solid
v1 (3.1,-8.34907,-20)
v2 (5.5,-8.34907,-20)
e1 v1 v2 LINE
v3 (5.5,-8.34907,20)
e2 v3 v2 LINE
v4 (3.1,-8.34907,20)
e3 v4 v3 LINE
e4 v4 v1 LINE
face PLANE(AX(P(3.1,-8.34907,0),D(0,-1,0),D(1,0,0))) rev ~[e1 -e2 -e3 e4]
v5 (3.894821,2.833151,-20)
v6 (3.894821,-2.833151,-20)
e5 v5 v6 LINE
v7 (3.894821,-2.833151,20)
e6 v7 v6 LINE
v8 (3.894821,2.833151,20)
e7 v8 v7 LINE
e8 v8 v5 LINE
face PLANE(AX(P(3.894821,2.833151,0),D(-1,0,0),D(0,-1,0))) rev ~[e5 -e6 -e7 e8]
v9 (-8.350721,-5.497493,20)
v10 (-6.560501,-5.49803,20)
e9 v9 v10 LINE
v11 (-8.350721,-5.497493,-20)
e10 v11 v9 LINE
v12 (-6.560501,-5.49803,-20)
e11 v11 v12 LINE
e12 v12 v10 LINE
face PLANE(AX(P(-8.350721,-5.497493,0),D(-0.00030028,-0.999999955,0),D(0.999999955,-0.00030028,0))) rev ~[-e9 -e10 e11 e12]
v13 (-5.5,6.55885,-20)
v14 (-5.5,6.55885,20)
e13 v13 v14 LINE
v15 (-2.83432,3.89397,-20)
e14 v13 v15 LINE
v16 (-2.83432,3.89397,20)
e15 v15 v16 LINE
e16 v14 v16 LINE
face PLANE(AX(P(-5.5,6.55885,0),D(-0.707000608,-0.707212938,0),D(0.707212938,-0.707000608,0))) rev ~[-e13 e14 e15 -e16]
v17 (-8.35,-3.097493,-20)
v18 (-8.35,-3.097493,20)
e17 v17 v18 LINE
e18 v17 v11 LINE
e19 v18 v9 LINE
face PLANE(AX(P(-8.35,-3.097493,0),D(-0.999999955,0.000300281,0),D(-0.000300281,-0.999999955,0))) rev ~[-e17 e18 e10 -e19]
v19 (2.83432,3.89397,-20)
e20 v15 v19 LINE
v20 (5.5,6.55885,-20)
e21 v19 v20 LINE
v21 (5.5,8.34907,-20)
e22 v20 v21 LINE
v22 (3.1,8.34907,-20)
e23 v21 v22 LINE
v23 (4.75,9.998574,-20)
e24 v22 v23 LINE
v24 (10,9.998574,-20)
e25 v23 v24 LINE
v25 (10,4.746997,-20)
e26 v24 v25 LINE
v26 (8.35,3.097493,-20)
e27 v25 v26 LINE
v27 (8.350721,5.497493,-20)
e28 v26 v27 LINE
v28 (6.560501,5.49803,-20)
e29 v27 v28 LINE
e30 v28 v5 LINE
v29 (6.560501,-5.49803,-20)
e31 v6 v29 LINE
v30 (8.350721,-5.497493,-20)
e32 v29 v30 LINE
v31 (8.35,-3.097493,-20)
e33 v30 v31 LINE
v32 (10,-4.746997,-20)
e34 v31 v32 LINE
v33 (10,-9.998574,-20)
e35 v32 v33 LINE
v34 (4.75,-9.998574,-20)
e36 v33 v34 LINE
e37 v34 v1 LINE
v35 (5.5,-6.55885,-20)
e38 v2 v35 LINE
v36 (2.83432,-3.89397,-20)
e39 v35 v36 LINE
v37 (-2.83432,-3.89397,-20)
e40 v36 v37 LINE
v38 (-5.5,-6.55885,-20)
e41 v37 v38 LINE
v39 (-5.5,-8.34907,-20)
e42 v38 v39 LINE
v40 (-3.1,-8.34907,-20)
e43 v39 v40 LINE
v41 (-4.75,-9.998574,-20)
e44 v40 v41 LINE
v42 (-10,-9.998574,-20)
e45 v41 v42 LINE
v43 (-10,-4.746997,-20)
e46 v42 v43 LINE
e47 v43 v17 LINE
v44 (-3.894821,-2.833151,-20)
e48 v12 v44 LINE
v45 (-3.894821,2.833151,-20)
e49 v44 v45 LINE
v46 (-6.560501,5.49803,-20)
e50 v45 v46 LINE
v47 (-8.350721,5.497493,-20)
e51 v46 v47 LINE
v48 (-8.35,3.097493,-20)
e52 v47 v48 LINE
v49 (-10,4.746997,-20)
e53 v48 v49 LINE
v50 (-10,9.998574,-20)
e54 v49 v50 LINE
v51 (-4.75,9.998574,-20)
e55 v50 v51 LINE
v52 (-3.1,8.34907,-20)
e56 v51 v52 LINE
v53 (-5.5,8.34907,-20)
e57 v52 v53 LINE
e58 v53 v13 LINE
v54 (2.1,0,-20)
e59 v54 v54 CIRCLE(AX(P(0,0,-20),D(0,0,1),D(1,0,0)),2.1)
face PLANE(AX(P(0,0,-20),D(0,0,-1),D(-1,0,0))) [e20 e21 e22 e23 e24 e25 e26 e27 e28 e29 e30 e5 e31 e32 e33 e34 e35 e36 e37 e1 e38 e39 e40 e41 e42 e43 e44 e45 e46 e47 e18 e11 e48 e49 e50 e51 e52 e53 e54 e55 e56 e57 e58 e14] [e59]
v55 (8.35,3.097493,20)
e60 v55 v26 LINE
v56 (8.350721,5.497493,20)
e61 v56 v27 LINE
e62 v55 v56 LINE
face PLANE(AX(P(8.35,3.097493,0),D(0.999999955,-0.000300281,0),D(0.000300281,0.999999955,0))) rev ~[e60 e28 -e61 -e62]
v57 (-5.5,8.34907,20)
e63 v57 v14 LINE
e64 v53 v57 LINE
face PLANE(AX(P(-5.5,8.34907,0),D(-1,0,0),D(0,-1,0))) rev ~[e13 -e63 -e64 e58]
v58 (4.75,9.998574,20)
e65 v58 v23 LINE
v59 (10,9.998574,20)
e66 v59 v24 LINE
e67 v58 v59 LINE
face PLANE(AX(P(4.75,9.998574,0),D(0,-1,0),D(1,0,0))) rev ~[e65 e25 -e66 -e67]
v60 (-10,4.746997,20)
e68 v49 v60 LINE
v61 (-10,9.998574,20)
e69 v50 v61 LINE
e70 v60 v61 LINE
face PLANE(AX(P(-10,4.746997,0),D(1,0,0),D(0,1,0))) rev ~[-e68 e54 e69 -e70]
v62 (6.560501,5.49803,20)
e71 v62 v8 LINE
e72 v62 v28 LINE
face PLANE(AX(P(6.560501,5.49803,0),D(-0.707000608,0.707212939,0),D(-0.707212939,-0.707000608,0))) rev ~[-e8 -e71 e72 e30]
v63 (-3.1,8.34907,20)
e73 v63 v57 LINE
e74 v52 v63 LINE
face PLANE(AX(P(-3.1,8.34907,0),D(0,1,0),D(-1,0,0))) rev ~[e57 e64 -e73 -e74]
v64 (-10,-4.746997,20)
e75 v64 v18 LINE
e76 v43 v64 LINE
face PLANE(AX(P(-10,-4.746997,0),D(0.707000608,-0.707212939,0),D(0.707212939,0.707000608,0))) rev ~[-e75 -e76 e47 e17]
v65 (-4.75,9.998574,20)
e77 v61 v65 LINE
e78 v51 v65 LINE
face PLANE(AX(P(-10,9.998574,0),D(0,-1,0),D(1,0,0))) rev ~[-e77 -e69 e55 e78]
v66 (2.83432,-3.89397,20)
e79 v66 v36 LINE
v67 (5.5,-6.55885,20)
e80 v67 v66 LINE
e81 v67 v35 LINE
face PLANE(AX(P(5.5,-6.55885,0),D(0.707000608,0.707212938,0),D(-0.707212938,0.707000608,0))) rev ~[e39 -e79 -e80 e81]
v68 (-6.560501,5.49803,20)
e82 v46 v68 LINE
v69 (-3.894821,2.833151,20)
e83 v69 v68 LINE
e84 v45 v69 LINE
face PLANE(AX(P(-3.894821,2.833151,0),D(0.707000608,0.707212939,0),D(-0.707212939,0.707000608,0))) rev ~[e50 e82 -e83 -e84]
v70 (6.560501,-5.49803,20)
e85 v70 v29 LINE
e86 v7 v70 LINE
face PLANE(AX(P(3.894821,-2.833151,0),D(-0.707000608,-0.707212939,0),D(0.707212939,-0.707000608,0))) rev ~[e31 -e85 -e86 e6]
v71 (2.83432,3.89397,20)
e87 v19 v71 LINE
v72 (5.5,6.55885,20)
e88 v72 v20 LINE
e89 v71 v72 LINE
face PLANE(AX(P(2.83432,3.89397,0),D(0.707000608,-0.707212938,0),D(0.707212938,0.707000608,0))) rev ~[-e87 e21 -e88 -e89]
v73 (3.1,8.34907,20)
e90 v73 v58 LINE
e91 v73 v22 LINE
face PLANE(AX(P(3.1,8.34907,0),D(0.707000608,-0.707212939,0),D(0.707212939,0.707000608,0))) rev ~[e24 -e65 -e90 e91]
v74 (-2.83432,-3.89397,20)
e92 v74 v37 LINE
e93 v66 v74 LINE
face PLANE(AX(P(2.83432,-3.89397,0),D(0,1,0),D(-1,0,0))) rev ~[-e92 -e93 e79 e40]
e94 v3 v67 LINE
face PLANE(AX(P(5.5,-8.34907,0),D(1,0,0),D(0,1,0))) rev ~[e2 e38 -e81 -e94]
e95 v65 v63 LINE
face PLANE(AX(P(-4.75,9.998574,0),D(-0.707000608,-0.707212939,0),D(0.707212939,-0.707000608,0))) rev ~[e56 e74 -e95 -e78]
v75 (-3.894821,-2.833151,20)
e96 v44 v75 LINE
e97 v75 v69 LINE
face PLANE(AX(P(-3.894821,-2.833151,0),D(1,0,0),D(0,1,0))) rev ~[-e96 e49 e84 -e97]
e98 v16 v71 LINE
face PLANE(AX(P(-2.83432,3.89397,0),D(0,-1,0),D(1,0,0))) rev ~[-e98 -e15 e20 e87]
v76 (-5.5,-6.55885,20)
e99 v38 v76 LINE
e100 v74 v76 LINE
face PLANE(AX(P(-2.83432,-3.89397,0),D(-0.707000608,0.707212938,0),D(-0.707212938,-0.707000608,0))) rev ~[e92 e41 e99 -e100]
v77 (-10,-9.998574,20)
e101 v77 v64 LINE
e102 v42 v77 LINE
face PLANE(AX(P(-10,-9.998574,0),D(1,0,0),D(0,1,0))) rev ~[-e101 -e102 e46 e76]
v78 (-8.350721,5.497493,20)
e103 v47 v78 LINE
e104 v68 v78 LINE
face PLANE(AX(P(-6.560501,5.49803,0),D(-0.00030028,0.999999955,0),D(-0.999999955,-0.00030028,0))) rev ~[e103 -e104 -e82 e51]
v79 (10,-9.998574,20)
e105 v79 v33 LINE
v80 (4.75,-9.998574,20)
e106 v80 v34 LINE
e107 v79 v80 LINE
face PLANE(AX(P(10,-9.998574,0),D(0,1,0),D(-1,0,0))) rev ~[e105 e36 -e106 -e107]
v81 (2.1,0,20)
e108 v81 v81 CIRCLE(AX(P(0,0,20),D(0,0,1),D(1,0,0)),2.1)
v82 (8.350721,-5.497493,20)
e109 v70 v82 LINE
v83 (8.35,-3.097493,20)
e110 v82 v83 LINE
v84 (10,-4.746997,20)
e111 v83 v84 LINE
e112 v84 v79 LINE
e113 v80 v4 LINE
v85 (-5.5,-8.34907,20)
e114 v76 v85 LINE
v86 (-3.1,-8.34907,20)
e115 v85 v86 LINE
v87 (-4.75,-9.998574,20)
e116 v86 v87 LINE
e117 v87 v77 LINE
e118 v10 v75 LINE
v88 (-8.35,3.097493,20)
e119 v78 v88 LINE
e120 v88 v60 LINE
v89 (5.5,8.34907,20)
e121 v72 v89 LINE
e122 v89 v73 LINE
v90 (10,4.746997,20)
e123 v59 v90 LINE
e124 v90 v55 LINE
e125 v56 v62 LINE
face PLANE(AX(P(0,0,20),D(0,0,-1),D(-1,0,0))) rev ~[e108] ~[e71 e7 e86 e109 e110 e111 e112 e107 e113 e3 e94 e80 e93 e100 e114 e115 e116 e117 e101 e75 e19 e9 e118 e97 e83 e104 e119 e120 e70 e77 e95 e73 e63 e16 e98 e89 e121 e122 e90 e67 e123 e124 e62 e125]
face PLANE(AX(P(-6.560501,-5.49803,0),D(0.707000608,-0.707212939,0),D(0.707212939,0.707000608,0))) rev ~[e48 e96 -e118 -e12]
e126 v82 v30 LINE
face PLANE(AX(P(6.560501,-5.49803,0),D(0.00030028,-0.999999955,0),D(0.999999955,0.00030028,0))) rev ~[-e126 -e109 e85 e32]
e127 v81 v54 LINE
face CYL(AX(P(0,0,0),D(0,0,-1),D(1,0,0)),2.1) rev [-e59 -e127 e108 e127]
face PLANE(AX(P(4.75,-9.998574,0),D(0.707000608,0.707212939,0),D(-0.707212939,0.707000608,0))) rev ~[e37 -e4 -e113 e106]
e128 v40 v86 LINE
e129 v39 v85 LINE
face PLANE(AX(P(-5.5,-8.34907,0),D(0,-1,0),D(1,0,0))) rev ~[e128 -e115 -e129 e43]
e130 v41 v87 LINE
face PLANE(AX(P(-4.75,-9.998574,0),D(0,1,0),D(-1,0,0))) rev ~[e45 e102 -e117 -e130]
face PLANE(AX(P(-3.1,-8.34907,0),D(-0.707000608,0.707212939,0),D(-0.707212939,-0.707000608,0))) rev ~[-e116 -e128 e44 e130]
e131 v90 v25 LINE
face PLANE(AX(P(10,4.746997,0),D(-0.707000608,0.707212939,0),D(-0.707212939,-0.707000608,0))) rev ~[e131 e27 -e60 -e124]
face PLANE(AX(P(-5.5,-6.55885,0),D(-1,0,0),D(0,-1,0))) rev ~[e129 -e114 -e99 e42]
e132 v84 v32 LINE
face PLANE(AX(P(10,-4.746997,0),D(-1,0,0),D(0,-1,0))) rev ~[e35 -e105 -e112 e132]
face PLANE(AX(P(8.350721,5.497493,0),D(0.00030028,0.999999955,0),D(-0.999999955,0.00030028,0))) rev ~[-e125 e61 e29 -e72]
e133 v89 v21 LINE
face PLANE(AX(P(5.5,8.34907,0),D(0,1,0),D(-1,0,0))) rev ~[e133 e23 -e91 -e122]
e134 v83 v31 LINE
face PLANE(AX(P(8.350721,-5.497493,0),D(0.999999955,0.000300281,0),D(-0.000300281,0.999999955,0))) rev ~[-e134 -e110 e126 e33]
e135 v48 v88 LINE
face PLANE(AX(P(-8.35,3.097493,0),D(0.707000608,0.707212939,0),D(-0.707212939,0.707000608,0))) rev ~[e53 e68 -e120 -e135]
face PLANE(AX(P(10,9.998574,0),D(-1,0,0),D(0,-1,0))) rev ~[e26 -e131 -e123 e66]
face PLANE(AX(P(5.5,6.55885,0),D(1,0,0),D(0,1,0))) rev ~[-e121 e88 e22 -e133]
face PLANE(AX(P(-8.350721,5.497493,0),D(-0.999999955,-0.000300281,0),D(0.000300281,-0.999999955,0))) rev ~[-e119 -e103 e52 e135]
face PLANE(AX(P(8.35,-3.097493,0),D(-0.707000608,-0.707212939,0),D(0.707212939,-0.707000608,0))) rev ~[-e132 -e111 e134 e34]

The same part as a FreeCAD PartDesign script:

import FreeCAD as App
import Part
import Sketcher
Q = App.Units.Quantity


def add_polygon(sketch, points):
    """Adds a closed chain of lines whose ends are joined by coincident constraints."""
    first, n = sketch.GeometryCount, len(points)
    for a, b in zip(points, points[1:] + points[:1]):
        sketch.addGeometry(Part.LineSegment(App.Vector(*a, 0), App.Vector(*b, 0)), False)
    for i in range(n):
        sketch.addConstraint(Sketcher.Constraint("Coincident", first + i, 2, first + (i + 1) % n, 1))

doc = App.newDocument("Part")
body = doc.addObject("PartDesign::Body", "Body")

sketch1 = body.newObject("Sketcher::SketchObject", "Sketch")
sketch1.AttachmentSupport = (doc.getObject("XY_Plane"), [""])
sketch1.MapMode = "FlatFace"
add_polygon(sketch1, [(5.5, 6.6), (2.8, 3.9), (-2.8, 3.9), (-5.5, 6.6), (-5.5, 8.3), (-3.1, 8.3), (-4.8, 10), (-10, 10), (-10, 4.7), (-8.3, 3.1), (-8.4, 5.5), (-6.6, 5.5), (-3.9, 2.8), (-3.9, -2.8), (-6.6, -5.5), (-8.4, -5.5), (-8.3, -3.1), (-10, -4.7), (-10, -10), (-4.8, -10), (-3.1, -8.3), (-5.5, -8.3), (-5.5, -6.6), (-2.8, -3.9), (2.8, -3.9), (5.5, -6.6), (5.5, -8.3), (3.1, -8.3), (4.8, -10), (10, -10), (10, -4.7), (8.3, -3.1), (8.4, -5.5), (6.6, -5.5), (3.9, -2.8), (3.9, 2.8), (6.6, 5.5), (8.4, 5.5), (8.3, 3.1), (10, 4.7), (10, 10), (4.8, 10), (3.1, 8.3), (5.5, 8.3)])
sketch1.addGeometry(Part.Circle(App.Vector(0, 0, 0), App.Vector(0, 0, 1), 2.1), False)
sketch1.addConstraint([
    Sketcher.Constraint("Horizontal", 1),
    Sketcher.Constraint("Vertical", 3),
    Sketcher.Constraint("Horizontal", 4),
    Sketcher.Constraint("Horizontal", 6),
    Sketcher.Constraint("Vertical", 7),
    Sketcher.Constraint("Vertical", 12),
    Sketcher.Constraint("Vertical", 17),
    Sketcher.Constraint("Horizontal", 18),
    Sketcher.Constraint("Horizontal", 20),
    Sketcher.Constraint("Vertical", 21),
    Sketcher.Constraint("Horizontal", 23),
    Sketcher.Constraint("Vertical", 25),
    Sketcher.Constraint("Horizontal", 26),
    Sketcher.Constraint("Horizontal", 28),
    Sketcher.Constraint("Vertical", 29),
    Sketcher.Constraint("Vertical", 34),
    Sketcher.Constraint("Vertical", 39),
    Sketcher.Constraint("Horizontal", 40),
    Sketcher.Constraint("Horizontal", 42),
    Sketcher.Constraint("Vertical", 43),
    Sketcher.Constraint("Coincident", 44, 3, -1, 1),
    Sketcher.Constraint("Symmetric", 0, 2, 22, 2, -1, 1),
    Sketcher.Constraint("Symmetric", 2, 2, 24, 2, -1, 1),
    Sketcher.Constraint("Symmetric", 4, 2, 26, 2, -1, 1),
    Sketcher.Constraint("Symmetric", 5, 2, 27, 2, -1, 1),
    Sketcher.Constraint("Symmetric", 7, 2, 29, 2, -1, 1),
    Sketcher.Constraint("Symmetric", 8, 2, 30, 2, -1, 1),
    Sketcher.Constraint("Symmetric", 9, 2, 31, 2, -1, 1),
    Sketcher.Constraint("Symmetric", 10, 2, 32, 2, -1, 1),
    Sketcher.Constraint("Symmetric", 11, 2, 33, 2, -1, 1),
    Sketcher.Constraint("Symmetric", 13, 2, 35, 2, -1, 1),
    Sketcher.Constraint("Symmetric", 14, 2, 36, 2, -1, 1),
    Sketcher.Constraint("Symmetric", 15, 2, 37, 2, -1, 1),
    Sketcher.Constraint("Symmetric", 16, 2, 38, 2, -1, 1),
    Sketcher.Constraint("Symmetric", 18, 2, 40, 2, -1, 1),
    Sketcher.Constraint("Symmetric", 19, 2, 41, 2, -1, 1),
    Sketcher.Constraint("Symmetric", 21, 2, 43, 2, -1, 1),
    Sketcher.Constraint("Symmetric", 21, 2, 24, 2, -2),
    Sketcher.Constraint("Symmetric", 19, 2, 26, 2, -2),
    Sketcher.Constraint("Symmetric", 18, 2, 27, 2, -2),
    Sketcher.Constraint("Symmetric", 16, 2, 29, 2, -2),
    Sketcher.Constraint("Symmetric", 15, 2, 30, 2, -2),
    Sketcher.Constraint("Symmetric", 14, 2, 31, 2, -2),
    Sketcher.Constraint("Symmetric", 13, 2, 32, 2, -2),
    Sketcher.Constraint("Parallel", 2, 5),
    Sketcher.Constraint("Parallel", 5, 8),
    Sketcher.Constraint("Perpendicular", 9, 10),
    Sketcher.Constraint("Parallel", 8, 11),
    Sketcher.Constraint("Parallel", 0, 13),
    Sketcher.Constraint("Parallel", 13, 16),
    Sketcher.Constraint("Parallel", 11, 24),
    Sketcher.Constraint("Parallel", 22, 35),
    Sketcher.Constraint("Equal", 5, 8),
    Sketcher.Constraint("Equal", 2, 11),
    Sketcher.Constraint("Diameter", 44, Q("4.2 mm")),
    Sketcher.Constraint("DistanceX", 4, 1, 4, 2, Q("2.4 mm")),
    Sketcher.Constraint("DistanceX", 6, 2, -1, 1, Q("10 mm")),
    Sketcher.Constraint("Distance", 9, Q("2.4 mm")),
    Sketcher.Constraint("DistanceX", 6, 2, 6, 1, Q("5.25 mm")),
    Sketcher.Constraint("DistanceX", 2, 2, -1, 1, Q("5.5 mm")),
    Sketcher.Constraint("DistanceY", 12, 2, 12, 1, Q("5.666302 mm")),
    Sketcher.Constraint("DistanceY", 13, 2, 1, 2, Q("9.392001 mm")),
    Sketcher.Constraint("DistanceX", 1, 2, 1, 1, Q("5.668641 mm")),
    Sketcher.Constraint("DistanceY", 3, 1, 3, 2, Q("1.79022 mm")),
    Sketcher.Constraint("DistanceX", 10, 2, -1, 1, Q("6.560501 mm")),
    Sketcher.Constraint("DistanceY", 1, 2, 3, 2, Q("4.455099 mm")),
    Sketcher.Constraint("DistanceX", 14, 2, 12, 2, Q("4.455899 mm")),
])
pad1 = body.newObject("PartDesign::Pad", "Pad")
pad1.Profile = sketch1
pad1.Length = 40
pad1.Midplane = True

doc.recompute()
